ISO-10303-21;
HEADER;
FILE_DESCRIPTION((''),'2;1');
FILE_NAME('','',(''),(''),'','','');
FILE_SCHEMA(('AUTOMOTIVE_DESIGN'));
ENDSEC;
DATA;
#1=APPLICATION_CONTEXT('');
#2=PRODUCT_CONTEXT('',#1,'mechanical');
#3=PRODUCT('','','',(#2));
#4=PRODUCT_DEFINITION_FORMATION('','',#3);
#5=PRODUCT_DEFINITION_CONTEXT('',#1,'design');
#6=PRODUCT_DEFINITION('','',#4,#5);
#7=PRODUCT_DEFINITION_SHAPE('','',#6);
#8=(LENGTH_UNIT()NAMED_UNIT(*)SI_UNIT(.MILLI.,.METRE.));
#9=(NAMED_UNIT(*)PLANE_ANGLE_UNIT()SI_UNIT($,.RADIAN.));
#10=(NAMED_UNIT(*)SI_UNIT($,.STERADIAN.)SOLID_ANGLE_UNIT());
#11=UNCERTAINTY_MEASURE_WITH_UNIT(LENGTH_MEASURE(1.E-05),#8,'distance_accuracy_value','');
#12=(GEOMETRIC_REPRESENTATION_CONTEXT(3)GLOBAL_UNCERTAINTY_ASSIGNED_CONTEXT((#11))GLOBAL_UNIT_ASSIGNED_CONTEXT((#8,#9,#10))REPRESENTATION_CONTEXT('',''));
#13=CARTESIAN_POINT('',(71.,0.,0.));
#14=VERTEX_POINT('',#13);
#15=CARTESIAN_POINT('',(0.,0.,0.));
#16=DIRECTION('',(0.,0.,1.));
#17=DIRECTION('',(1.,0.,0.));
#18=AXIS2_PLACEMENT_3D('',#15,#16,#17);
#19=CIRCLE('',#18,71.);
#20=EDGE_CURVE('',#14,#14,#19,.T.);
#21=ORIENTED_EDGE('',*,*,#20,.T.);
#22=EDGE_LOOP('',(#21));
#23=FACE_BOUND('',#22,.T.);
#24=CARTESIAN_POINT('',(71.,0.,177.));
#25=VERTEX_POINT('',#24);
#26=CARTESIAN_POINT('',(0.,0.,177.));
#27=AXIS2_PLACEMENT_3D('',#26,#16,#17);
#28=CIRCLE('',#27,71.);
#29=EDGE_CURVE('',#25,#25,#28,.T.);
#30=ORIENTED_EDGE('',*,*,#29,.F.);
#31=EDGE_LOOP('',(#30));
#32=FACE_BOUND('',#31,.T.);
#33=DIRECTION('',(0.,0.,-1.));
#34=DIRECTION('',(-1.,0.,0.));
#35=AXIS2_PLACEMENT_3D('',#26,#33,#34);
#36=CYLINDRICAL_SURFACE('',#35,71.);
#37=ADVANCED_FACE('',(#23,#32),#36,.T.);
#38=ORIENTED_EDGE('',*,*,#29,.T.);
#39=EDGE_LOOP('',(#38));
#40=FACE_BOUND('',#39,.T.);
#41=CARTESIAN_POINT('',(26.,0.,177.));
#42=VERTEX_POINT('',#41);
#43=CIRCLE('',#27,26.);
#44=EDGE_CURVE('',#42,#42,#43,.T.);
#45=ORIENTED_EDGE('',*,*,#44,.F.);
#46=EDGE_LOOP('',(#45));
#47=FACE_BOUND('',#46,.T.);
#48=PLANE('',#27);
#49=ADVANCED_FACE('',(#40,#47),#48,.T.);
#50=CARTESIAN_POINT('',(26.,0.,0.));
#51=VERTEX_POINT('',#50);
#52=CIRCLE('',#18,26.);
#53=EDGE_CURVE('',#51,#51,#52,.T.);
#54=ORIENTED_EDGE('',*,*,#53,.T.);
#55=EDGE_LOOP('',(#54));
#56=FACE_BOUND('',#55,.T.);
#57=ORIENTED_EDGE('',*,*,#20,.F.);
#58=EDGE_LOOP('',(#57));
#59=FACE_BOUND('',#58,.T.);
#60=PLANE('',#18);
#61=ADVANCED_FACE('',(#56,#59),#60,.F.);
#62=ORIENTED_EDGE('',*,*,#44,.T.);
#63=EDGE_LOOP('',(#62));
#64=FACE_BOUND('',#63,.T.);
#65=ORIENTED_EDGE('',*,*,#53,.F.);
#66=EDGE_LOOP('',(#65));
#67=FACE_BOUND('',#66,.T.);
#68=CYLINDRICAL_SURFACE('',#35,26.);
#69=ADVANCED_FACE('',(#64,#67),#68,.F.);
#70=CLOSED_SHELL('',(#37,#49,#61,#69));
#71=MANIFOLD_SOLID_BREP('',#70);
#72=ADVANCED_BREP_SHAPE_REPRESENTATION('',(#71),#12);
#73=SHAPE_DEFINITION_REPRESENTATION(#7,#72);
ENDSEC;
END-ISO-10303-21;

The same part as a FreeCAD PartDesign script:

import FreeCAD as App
import Part
import Sketcher
from FreeCAD import Vector
Q = App.Units.Quantity

doc = App.newDocument("Part")
body = doc.addObject("PartDesign::Body", "Body")

# Sketch on XY plane
sketch1 = body.newObject("Sketcher::SketchObject", "Sketch")
sketch1.AttachmentSupport = (doc.getObject("XY_Plane"), [""])
sketch1.MapMode = "FlatFace"
sketch1.addGeometry(Part.Circle(Vector(0, 0, 0), Vector(0, 0, 1), 71), False)
sketch1.addGeometry(Part.Circle(Vector(0, 0, 0), Vector(0, 0, 1), 26), False)
sketch1.addConstraint(Sketcher.Constraint("Coincident", 0, 3, -1, 1))
sketch1.addConstraint(Sketcher.Constraint("Coincident", 1, 3, -1, 1))
sketch1.addConstraint(Sketcher.Constraint("Diameter", 0, Q("142 mm")))
sketch1.addConstraint(Sketcher.Constraint("Diameter", 1, Q("52 mm")))
pad1 = body.newObject("PartDesign::Pad", "Pad")
pad1.Profile = sketch1
pad1.Length = 177

doc.recompute()
